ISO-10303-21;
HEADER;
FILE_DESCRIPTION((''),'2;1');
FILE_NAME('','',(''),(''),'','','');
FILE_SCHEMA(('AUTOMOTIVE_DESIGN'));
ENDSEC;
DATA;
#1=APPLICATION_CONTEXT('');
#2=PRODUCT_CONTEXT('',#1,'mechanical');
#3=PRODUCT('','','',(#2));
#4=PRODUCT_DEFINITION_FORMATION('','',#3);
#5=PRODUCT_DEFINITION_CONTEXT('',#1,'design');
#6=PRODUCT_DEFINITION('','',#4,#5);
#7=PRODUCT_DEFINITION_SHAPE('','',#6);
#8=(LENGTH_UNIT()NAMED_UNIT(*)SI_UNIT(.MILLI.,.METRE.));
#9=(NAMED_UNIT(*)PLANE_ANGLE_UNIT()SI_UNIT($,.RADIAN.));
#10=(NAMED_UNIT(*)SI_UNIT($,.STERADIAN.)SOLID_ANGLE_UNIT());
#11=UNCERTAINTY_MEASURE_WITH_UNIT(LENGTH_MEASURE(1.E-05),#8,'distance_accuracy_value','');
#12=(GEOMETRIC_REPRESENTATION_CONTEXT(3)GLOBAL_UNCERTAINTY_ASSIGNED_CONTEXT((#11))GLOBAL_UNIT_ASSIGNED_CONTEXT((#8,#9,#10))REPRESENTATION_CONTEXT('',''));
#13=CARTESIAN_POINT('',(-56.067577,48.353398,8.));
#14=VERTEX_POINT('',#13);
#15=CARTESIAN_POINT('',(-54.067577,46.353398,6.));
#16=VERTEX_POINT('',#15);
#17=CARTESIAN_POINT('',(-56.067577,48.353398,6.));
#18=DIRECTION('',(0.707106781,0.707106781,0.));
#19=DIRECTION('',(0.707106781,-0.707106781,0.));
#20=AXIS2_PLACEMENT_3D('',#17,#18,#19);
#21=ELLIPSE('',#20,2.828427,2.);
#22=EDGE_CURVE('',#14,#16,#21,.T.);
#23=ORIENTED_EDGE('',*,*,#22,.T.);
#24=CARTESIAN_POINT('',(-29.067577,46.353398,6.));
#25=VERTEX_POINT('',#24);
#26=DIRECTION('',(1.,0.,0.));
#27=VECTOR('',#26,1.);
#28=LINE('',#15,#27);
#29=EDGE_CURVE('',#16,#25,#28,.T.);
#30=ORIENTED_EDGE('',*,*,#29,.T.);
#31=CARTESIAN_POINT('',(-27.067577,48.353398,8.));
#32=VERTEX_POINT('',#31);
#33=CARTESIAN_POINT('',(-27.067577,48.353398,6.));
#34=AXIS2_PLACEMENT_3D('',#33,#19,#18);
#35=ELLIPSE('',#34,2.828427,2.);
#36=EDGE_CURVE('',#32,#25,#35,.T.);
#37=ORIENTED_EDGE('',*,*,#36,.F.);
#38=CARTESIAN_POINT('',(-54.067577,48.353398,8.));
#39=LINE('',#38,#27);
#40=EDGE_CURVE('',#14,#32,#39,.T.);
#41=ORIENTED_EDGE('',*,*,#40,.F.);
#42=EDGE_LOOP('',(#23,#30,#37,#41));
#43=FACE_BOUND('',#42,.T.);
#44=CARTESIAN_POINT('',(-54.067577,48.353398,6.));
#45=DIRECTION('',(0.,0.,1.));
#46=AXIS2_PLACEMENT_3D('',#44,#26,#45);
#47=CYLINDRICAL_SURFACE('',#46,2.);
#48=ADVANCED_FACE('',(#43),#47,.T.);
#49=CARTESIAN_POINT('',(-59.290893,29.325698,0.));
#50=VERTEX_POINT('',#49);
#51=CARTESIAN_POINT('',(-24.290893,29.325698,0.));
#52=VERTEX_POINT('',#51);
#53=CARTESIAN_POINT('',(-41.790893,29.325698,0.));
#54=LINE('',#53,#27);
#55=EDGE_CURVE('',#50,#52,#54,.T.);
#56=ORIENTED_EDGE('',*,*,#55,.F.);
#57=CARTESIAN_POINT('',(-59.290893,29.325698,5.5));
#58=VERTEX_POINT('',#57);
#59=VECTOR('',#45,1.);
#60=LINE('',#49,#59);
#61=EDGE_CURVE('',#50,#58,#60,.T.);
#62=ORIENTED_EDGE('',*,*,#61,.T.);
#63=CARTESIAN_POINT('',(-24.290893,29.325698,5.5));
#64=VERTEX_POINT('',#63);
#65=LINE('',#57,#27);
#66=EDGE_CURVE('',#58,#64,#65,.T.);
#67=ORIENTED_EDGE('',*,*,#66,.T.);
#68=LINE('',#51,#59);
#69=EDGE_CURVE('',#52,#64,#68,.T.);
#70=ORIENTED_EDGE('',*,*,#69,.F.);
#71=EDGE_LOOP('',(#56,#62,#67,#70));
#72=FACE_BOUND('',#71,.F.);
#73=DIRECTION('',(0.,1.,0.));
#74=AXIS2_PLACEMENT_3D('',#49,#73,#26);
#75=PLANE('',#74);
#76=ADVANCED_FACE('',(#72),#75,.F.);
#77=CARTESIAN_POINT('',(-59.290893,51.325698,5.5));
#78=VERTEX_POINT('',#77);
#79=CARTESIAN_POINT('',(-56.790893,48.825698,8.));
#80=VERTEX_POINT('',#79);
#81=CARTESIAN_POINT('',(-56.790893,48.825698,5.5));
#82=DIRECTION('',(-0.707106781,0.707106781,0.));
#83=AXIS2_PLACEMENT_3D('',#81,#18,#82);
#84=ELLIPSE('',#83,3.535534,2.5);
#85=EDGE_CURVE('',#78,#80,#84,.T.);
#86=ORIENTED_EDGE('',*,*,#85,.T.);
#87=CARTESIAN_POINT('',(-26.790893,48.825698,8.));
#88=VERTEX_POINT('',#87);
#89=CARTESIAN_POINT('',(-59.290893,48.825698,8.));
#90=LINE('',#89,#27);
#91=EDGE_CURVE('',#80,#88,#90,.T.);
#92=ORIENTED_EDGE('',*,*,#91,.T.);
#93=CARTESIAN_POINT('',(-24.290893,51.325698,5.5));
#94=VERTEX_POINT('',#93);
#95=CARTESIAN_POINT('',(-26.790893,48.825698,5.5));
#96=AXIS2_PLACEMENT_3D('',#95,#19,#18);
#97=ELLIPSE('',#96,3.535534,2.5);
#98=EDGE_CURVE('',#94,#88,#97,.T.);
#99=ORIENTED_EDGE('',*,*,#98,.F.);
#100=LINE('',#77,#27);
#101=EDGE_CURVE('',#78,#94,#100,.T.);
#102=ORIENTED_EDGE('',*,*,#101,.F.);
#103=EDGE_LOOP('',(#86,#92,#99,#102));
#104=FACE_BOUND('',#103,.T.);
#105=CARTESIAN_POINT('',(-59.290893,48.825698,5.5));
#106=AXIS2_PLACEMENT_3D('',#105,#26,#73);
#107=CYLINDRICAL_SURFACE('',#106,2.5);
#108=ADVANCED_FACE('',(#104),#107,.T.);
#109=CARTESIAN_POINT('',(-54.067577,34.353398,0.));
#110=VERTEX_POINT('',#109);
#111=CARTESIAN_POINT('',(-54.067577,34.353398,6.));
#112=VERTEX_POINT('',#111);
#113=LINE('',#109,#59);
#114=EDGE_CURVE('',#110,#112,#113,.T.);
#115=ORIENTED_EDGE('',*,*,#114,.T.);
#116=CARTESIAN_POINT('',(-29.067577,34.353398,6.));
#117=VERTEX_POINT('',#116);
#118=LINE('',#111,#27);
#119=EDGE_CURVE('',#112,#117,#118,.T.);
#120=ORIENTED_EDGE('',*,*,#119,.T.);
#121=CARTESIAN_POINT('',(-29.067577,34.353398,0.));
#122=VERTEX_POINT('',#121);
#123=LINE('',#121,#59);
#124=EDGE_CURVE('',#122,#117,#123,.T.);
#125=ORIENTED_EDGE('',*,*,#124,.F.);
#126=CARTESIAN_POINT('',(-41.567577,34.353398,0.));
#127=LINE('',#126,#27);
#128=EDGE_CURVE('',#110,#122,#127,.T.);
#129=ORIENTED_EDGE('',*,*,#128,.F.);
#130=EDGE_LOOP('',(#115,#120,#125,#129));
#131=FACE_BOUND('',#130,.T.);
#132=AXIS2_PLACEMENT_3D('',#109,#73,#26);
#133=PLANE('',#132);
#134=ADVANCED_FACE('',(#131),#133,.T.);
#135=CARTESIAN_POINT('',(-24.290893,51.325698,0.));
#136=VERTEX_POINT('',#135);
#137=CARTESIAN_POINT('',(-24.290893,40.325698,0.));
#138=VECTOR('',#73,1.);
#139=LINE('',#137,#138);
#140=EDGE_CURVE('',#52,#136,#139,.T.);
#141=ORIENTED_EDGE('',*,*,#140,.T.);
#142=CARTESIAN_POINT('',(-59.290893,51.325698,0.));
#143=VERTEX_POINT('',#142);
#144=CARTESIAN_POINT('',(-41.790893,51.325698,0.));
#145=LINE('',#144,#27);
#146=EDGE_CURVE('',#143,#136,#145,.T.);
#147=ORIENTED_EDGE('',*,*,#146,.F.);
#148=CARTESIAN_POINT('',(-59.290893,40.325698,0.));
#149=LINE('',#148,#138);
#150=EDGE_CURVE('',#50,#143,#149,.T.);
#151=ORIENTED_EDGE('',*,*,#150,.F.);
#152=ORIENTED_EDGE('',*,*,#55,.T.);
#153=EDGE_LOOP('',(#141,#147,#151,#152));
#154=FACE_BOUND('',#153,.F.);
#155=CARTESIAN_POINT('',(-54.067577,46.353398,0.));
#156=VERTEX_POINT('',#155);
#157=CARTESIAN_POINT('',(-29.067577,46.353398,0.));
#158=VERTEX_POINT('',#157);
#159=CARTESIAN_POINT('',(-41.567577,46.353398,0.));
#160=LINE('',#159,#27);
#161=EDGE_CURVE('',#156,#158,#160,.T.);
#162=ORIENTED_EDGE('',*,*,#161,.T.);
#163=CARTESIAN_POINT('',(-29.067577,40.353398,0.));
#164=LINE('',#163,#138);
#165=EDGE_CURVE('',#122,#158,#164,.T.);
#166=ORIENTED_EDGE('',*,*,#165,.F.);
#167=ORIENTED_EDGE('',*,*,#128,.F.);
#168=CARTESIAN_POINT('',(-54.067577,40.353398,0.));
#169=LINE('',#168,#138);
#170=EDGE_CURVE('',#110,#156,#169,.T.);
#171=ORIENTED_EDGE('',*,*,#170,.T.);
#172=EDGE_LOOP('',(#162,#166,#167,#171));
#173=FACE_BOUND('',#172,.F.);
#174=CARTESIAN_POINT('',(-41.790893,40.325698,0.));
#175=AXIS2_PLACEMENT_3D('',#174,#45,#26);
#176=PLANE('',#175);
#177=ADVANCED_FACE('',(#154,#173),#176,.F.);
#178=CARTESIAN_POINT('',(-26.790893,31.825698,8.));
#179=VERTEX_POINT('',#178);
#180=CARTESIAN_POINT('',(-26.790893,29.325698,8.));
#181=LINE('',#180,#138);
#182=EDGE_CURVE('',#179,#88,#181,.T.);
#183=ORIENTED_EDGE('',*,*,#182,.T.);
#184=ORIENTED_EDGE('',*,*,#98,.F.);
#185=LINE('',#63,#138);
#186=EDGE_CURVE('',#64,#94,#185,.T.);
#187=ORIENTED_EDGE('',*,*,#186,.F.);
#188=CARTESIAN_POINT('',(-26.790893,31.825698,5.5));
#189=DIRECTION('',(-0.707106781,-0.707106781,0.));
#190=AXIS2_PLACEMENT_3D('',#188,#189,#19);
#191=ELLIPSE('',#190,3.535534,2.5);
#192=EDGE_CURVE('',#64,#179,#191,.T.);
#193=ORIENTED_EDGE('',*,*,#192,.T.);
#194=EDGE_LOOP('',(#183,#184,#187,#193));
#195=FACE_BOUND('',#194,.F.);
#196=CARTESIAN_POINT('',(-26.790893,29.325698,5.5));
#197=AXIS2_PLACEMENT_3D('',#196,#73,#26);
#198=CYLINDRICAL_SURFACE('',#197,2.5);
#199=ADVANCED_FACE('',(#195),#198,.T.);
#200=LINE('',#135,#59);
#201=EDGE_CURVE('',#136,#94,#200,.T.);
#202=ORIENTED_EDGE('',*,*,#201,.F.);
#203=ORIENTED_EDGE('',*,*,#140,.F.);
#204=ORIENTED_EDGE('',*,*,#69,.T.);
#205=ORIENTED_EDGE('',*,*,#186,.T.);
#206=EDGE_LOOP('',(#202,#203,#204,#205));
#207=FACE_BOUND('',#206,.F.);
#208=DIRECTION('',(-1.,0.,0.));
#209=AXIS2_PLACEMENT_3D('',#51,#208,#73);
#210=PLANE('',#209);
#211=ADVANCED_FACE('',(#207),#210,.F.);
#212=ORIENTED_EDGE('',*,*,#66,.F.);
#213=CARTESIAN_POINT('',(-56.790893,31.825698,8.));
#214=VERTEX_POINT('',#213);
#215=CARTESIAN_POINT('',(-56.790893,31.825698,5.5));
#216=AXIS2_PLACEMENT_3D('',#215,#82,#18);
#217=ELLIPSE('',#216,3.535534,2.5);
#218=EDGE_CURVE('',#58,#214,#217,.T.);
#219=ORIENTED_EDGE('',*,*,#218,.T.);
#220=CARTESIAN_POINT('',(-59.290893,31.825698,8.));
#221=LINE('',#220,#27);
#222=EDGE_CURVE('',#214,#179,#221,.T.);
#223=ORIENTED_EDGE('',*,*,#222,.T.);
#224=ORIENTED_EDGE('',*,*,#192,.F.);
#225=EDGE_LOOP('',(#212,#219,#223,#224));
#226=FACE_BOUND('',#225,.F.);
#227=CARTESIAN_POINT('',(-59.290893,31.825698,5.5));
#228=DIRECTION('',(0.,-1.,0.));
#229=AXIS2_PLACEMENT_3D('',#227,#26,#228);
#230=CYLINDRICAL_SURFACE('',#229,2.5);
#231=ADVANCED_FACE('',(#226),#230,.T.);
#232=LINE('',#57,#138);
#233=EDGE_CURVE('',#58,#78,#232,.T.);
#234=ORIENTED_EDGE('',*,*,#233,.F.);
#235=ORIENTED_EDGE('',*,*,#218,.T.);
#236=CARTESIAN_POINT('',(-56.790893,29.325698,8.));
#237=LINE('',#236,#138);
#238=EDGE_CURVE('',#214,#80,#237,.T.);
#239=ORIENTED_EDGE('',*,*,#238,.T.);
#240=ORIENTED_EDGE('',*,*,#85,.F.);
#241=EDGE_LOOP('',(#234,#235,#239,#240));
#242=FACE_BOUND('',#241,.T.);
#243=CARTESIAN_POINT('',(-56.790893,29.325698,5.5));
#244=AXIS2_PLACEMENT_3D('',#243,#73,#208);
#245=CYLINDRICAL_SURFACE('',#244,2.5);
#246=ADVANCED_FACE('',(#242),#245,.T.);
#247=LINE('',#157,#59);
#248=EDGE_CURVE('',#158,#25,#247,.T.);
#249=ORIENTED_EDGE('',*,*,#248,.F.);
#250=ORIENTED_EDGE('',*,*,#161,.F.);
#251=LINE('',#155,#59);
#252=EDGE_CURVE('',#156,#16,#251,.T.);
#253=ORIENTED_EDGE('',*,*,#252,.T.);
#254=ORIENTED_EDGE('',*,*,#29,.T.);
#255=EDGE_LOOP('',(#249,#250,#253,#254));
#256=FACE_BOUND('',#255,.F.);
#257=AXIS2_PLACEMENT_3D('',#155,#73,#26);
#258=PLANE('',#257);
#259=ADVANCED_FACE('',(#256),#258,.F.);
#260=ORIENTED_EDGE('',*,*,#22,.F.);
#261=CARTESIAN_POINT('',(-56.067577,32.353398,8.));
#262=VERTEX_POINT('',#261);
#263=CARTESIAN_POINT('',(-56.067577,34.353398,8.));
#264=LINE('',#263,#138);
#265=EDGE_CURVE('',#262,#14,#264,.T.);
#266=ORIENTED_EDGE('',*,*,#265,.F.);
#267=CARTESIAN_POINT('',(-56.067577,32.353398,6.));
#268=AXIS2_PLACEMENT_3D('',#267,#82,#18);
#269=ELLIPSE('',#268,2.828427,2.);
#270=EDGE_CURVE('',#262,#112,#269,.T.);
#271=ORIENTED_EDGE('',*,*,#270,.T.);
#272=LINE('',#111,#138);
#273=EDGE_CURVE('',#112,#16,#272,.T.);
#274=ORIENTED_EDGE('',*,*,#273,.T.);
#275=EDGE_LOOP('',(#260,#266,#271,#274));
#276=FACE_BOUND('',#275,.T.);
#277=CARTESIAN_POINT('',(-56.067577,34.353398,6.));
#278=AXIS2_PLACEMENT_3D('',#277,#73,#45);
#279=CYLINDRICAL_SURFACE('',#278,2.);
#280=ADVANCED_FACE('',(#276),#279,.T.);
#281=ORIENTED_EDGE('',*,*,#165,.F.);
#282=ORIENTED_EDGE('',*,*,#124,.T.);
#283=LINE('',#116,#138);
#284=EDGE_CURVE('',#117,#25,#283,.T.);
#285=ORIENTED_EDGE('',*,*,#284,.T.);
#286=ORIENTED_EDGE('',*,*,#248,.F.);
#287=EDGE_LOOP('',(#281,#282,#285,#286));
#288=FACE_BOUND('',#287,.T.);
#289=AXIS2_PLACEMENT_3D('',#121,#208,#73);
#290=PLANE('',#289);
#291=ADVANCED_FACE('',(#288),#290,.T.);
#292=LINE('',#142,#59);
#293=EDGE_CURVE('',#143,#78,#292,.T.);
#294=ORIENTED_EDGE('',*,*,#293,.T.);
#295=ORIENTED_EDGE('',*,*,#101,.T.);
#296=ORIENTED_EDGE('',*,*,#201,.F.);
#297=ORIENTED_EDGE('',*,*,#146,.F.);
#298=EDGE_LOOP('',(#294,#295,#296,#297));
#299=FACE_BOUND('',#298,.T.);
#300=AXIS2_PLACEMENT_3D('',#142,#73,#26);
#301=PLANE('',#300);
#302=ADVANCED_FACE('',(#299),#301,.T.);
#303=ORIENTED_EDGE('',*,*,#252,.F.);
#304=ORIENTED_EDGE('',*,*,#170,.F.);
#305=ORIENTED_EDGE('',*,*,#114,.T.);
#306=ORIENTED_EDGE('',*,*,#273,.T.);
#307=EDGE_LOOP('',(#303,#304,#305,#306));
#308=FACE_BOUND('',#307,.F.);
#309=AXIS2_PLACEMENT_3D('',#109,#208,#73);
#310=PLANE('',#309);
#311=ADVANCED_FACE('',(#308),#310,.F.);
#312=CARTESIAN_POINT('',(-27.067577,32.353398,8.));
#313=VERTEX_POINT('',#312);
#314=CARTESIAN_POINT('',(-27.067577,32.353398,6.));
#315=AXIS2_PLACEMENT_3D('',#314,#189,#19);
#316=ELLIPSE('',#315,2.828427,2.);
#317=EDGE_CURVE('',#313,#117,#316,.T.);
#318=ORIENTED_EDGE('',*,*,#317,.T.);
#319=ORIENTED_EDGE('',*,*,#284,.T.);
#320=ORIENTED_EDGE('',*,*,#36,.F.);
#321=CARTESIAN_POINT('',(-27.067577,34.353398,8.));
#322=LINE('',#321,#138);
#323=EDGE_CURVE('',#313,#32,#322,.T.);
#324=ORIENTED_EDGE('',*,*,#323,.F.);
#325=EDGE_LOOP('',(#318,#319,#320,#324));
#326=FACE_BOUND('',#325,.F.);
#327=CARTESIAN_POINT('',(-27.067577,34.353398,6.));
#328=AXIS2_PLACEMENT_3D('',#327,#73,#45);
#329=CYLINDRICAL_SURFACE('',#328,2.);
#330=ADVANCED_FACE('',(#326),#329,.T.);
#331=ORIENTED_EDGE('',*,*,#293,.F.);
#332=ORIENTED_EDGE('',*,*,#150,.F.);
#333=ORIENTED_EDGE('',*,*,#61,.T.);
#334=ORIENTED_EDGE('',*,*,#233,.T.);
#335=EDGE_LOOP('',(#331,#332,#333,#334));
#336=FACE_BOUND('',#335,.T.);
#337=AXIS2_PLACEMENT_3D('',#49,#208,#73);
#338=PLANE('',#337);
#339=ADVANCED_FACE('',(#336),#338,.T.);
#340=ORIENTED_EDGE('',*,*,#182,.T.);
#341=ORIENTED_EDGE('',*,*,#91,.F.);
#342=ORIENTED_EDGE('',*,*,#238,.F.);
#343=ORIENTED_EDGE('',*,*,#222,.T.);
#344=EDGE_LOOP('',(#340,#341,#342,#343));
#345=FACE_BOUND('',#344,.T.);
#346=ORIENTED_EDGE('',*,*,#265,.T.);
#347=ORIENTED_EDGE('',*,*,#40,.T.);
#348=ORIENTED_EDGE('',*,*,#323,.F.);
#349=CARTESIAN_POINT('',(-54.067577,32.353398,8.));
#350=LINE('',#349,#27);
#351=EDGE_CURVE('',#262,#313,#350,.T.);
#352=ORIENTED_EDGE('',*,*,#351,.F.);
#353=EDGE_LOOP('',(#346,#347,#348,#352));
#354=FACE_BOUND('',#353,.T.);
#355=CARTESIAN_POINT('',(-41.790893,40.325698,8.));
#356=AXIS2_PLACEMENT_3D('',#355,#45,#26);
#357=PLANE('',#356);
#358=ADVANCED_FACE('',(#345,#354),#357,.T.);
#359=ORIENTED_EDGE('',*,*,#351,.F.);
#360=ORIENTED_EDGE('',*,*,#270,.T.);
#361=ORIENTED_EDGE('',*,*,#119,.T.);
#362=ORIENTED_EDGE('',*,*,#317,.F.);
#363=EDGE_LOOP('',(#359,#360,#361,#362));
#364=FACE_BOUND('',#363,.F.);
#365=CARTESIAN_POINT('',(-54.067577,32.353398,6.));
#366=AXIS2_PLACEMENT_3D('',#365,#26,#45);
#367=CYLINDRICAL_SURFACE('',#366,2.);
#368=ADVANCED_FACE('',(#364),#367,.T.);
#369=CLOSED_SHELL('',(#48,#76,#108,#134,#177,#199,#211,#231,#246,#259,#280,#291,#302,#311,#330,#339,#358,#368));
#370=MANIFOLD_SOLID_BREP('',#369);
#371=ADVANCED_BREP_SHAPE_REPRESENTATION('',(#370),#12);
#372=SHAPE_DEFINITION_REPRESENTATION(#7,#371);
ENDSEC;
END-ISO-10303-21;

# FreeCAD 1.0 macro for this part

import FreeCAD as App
import Part
import Sketcher
Q = App.Units.Quantity


def edges_at(feature, points):
    """Names of the edges that pass closest to the given points."""
    edges = feature.Shape.Edges
    near = lambda p: min(range(len(edges)), key=lambda i: edges[i].distToShape(Part.Vertex(*p))[0])
    return sorted({f"Edge{near(p) + 1}" for p in points})


def add_polygon(sketch, points):
    """Adds a closed chain of lines whose ends are joined by coincident constraints."""
    first, n = sketch.GeometryCount, len(points)
    for a, b in zip(points, points[1:] + points[:1]):
        sketch.addGeometry(Part.LineSegment(App.Vector(*a, 0), App.Vector(*b, 0)), False)
    for i in range(n):
        sketch.addConstraint(Sketcher.Constraint("Coincident", first + i, 2, first + (i + 1) % n, 1))

doc = App.newDocument("Part")
body = doc.addObject("PartDesign::Body", "Body")

# Sketch on XY plane
sketch1 = doc.addObject("Sketcher::SketchObject", "Sketch")
body.addObject(sketch1)
sketch1.AttachmentSupport = (doc.XY_Plane, [""])
sketch1.MapMode = "FlatFace"
add_polygon(sketch1, [(-59.290893, 51.325698), (-59.290893, 29.325698), (-24.290893, 29.325698), (-24.290893, 51.325698)])  # lines 0-3
add_polygon(sketch1, [(-29.067577, 34.353398), (-54.067577, 34.353398), (-54.067577, 46.353398), (-29.067577, 46.353398)])  # lines 4-7
sketch1.addConstraint([
    Sketcher.Constraint("Vertical", 0),
    Sketcher.Constraint("Horizontal", 1),
    Sketcher.Constraint("Vertical", 2),
    Sketcher.Constraint("Horizontal", 3),
    Sketcher.Constraint("Horizontal", 4),
    Sketcher.Constraint("Vertical", 5),
    Sketcher.Constraint("Horizontal", 6),
    Sketcher.Constraint("Vertical", 7),
    Sketcher.Constraint("DistanceX", 1, 1, 1, 2, Q("35 mm")),
    Sketcher.Constraint("DistanceX", 4, 2, 4, 1, Q("25 mm")),
    Sketcher.Constraint("DistanceY", 0, 2, 0, 1, Q("22 mm")),
    Sketcher.Constraint("DistanceY", 5, 1, 5, 2, Q("12 mm")),
    Sketcher.Constraint("DistanceY", -1, 1, 2, 2, Q("51.325698 mm")),
    Sketcher.Constraint("DistanceY", 0, 2, 4, 2, Q("5.0277 mm")),
    Sketcher.Constraint("DistanceX", 0, 2, -1, 1, Q("59.290893 mm")),
    Sketcher.Constraint("DistanceX", 4, 2, -1, 1, Q("54.067577 mm")),
])
pad1 = doc.addObject("PartDesign::Pad", "Pad")
body.addObject(pad1)
pad1.Profile = sketch1
pad1.Length = 8
doc.recompute()

fillet = doc.addObject("PartDesign::Fillet", "Fillet")
body.addObject(fillet)
fillet.Base = (pad1, edges_at(pad1, [
    (-41.791, 29.326, 8),
    (-59.291, 40.326, 8),
    (-41.791, 51.326, 8),
    (-24.291, 40.326, 8),
]))
fillet.Radius = 2.5
doc.recompute()

fillet2 = doc.addObject("PartDesign::Fillet", "Fillet001")
body.addObject(fillet2)
fillet2.Base = (fillet, edges_at(fillet, [
    (-41.568, 46.353, 8),
    (-54.068, 40.353, 8),
    (-41.568, 34.353, 8),
    (-29.068, 40.353, 8),
]))
fillet2.Radius = 2

doc.recompute()
